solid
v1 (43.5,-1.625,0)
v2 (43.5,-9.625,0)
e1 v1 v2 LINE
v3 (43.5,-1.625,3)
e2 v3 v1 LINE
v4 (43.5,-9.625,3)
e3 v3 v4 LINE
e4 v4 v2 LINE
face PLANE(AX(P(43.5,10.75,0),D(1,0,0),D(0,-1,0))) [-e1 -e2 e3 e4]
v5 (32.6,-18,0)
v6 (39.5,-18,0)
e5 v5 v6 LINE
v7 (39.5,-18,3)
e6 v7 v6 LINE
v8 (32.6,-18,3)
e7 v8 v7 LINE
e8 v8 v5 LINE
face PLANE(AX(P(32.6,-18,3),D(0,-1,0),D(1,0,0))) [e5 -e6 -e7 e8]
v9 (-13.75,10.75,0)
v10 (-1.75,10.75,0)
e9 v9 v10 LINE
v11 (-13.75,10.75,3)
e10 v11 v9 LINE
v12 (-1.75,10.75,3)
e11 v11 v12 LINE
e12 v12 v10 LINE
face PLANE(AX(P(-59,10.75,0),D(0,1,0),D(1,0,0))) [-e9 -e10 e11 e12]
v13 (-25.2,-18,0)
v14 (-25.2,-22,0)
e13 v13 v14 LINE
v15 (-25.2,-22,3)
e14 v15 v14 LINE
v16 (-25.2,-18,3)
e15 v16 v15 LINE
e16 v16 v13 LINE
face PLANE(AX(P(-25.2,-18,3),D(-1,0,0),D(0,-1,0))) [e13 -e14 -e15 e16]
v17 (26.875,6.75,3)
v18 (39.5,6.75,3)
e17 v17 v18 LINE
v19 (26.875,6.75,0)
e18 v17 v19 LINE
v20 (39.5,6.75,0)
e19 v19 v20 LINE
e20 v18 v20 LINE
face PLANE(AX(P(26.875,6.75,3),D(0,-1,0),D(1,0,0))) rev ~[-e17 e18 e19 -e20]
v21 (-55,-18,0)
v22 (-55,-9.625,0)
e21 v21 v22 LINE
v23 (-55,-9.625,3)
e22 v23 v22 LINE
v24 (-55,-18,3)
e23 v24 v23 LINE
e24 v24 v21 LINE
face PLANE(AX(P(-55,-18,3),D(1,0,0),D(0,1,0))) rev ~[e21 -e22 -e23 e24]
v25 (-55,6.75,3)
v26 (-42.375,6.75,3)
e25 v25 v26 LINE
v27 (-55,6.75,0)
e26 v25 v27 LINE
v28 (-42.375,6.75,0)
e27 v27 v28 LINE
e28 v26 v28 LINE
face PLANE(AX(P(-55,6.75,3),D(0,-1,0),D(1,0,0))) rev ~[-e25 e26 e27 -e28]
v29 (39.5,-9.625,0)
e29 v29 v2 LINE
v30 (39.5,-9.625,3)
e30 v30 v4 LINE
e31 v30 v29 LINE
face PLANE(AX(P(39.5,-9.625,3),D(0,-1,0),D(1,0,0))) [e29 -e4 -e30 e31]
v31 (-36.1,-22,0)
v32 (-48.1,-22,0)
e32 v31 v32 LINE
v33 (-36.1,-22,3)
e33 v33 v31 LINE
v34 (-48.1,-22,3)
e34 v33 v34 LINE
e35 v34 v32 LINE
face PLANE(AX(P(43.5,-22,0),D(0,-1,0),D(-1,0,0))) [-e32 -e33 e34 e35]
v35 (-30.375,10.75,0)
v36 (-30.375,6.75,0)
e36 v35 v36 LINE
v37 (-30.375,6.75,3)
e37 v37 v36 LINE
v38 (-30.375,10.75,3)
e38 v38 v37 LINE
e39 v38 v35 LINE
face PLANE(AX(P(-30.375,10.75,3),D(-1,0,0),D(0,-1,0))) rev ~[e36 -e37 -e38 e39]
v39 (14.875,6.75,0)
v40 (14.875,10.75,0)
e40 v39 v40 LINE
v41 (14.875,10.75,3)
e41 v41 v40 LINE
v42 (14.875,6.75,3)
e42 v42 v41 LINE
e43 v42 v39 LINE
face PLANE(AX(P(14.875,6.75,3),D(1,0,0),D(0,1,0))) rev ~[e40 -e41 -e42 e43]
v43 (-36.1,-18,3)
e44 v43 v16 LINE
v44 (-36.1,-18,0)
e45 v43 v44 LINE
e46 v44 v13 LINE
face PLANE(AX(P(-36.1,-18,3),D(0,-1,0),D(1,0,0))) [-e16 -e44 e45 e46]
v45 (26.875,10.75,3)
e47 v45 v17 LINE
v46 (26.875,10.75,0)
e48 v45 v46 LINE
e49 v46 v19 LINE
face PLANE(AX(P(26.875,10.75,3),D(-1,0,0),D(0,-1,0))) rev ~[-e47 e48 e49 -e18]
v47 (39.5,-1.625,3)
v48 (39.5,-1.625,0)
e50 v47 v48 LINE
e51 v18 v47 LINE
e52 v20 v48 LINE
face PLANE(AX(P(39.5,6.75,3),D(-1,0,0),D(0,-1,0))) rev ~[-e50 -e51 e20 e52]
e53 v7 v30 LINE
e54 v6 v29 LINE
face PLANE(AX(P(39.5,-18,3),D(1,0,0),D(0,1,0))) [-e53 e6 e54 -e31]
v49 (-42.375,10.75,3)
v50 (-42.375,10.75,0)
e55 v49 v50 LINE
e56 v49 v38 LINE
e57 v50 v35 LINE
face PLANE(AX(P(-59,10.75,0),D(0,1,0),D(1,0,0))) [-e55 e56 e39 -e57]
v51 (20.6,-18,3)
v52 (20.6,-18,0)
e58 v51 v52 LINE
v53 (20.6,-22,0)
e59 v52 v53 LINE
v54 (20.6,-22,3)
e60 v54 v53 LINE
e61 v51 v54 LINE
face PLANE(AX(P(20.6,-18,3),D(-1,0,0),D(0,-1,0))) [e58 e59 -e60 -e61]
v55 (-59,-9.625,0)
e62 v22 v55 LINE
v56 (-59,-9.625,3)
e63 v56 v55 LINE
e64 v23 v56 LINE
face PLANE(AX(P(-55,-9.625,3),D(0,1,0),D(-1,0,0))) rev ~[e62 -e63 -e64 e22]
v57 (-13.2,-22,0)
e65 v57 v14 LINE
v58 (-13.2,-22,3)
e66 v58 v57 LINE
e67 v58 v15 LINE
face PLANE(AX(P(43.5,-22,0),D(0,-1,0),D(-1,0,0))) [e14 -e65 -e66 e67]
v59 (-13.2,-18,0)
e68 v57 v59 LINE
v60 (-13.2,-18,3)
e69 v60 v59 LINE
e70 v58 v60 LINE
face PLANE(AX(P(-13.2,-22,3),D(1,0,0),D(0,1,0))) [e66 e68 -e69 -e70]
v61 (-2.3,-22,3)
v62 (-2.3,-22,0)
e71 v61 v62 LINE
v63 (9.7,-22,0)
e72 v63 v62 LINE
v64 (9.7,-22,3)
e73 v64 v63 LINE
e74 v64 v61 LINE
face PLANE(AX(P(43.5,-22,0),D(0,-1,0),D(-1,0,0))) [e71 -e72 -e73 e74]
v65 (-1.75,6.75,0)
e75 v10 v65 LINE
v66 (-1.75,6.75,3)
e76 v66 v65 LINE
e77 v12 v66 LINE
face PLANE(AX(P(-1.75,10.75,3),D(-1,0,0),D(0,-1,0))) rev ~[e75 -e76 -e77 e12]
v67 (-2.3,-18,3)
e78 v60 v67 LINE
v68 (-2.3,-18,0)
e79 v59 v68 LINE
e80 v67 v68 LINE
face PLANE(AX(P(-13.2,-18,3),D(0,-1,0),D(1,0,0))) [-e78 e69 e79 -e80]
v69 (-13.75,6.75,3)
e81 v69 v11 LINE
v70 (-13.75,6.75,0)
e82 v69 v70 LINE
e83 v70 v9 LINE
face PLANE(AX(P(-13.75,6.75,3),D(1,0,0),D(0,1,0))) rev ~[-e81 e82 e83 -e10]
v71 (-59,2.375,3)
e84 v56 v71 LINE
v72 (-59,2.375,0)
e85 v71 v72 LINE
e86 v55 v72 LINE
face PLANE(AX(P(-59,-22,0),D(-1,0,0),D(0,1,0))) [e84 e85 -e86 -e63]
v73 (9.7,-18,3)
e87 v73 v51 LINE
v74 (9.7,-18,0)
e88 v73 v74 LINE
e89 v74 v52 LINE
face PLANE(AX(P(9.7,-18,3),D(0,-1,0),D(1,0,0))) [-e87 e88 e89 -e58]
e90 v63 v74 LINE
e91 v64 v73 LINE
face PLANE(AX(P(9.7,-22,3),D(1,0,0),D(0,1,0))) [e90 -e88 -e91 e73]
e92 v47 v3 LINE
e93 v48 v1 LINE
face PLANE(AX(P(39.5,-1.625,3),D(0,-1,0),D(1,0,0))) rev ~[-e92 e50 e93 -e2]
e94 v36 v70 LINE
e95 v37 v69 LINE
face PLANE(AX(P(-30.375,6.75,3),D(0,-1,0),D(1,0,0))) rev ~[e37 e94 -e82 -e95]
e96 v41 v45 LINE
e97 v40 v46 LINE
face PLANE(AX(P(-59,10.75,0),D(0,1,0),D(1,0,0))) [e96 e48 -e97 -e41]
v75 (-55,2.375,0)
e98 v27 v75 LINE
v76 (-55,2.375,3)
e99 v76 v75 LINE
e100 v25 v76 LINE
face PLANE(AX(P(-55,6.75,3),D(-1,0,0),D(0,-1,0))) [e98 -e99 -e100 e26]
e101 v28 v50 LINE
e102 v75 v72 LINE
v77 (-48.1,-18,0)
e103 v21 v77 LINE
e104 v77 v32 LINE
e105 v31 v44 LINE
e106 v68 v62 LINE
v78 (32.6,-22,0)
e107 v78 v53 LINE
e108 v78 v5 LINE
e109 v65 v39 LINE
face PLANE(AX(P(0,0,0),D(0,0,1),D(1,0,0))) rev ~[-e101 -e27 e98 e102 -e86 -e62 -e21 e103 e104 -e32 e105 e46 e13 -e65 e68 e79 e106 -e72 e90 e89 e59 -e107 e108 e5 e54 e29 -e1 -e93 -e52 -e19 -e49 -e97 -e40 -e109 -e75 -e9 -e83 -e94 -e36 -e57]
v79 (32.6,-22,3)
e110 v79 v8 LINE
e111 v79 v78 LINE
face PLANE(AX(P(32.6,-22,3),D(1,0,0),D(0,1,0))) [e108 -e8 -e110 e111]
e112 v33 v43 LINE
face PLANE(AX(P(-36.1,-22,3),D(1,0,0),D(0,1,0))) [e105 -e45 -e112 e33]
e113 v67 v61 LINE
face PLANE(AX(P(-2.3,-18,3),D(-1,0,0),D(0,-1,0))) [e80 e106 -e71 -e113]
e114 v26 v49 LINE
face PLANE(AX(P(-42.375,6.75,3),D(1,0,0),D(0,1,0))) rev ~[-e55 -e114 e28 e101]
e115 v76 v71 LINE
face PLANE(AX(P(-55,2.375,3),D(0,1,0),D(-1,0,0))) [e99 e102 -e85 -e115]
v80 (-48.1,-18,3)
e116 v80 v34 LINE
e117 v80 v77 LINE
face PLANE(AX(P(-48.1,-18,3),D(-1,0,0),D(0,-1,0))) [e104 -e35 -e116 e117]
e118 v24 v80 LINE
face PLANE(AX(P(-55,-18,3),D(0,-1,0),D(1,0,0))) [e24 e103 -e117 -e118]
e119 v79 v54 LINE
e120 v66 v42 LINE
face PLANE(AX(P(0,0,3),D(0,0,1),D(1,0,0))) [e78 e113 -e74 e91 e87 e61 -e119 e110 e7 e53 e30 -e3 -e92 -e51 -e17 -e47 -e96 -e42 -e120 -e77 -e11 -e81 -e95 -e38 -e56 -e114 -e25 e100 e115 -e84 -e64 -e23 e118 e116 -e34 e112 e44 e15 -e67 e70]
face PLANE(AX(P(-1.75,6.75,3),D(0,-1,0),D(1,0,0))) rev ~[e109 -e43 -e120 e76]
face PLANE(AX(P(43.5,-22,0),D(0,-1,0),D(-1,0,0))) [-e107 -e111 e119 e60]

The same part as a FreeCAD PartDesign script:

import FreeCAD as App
import Part
import Sketcher

V = App.Vector
Q = App.Units.Quantity

doc = App.newDocument("Part")
body = doc.addObject("PartDesign::Body", "Body")

sketch1 = body.newObject("Sketcher::SketchObject", "Sketch")
sketch1.AttachmentSupport = (doc.getObject("XY_Plane"), [""])
sketch1.MapMode = "FlatFace"
sketch1.addGeometry(Part.LineSegment(V(44, 11, 0), V(-59, 11, 0)), False)
sketch1.addGeometry(Part.LineSegment(V(-59, 11, 0), V(-59, -22, 0)), False)
sketch1.addGeometry(Part.LineSegment(V(-59, -22, 0), V(44, -22, 0)), False)
sketch1.addGeometry(Part.LineSegment(V(44, -22, 0), V(44, 11, 0)), False)
sketch1.addConstraint(Sketcher.Constraint("Coincident", 0, 2, 1, 1))
sketch1.addConstraint(Sketcher.Constraint("Coincident", 1, 2, 2, 1))
sketch1.addConstraint(Sketcher.Constraint("Coincident", 2, 2, 3, 1))
sketch1.addConstraint(Sketcher.Constraint("Coincident", 3, 2, 0, 1))
sketch1.addConstraint(Sketcher.Constraint("Horizontal", 0))
sketch1.addConstraint(Sketcher.Constraint("Vertical", 1))
sketch1.addConstraint(Sketcher.Constraint("Horizontal", 2))
sketch1.addConstraint(Sketcher.Constraint("Vertical", 3))
sketch1.addConstraint(Sketcher.Constraint("DistanceX", 0, 2, -1, 1, Q("59 mm")))
sketch1.addConstraint(Sketcher.Constraint("DistanceY", 1, 2, -1, 1, Q("22 mm")))
sketch1.addConstraint(Sketcher.Constraint("DistanceX", -1, 1, 2, 2, Q("43.5 mm")))
sketch1.addConstraint(Sketcher.Constraint("DistanceY", -1, 1, 0, 2, Q("10.75 mm")))
pad1 = body.newObject("PartDesign::Pad", "Pad")
pad1.Profile = sketch1
pad1.Length = 3

sketch2 = body.newObject("Sketcher::SketchObject", "Sketch001")
sketch2.AttachmentSupport = (doc.getObject("XY_Plane"), [""])
sketch2.MapMode = "FlatFace"
sketch2.AttachmentOffset = App.Placement(V(0, 0, 3), App.Rotation())
sketch2.addGeometry(Part.LineSegment(V(-59, -22, 0), V(-48.1, -22, 0)), False)
sketch2.addGeometry(Part.LineSegment(V(-48.1, -22, 0), V(-48.1, -18, 0)), False)
sketch2.addGeometry(Part.LineSegment(V(-48.1, -18, 0), V(-55, -18, 0)), False)
sketch2.addGeometry(Part.LineSegment(V(-55, -18, 0), V(-55, -9.6, 0)), False)
sketch2.addGeometry(Part.LineSegment(V(-55, -9.6, 0), V(-59, -9.6, 0)), False)
sketch2.addGeometry(Part.LineSegment(V(-59, -9.6, 0), V(-59, -22, 0)), False)
sketch2.addGeometry(Part.LineSegment(V(-59, 2.4, 0), V(-55, 2.4, 0)), False)
sketch2.addGeometry(Part.LineSegment(V(-55, 2.4, 0), V(-55, 6.8, 0)), False)
sketch2.addGeometry(Part.LineSegment(V(-55, 6.8, 0), V(-42.4, 6.8, 0)), False)
sketch2.addGeometry(Part.LineSegment(V(-42.4, 6.8, 0), V(-42.4, 10.8, 0)), False)
sketch2.addGeometry(Part.LineSegment(V(-42.4, 10.8, 0), V(-59, 10.8, 0)), False)
sketch2.addGeometry(Part.LineSegment(V(-59, 10.8, 0), V(-59, 2.4, 0)), False)
sketch2.addGeometry(Part.LineSegment(V(39.5, -1.6, 0), V(43.5, -1.6, 0)), False)
sketch2.addGeometry(Part.LineSegment(V(43.5, -1.6, 0), V(43.5, 10.8, 0)), False)
sketch2.addGeometry(Part.LineSegment(V(43.5, 10.8, 0), V(26.9, 10.8, 0)), False)
sketch2.addGeometry(Part.LineSegment(V(26.9, 10.8, 0), V(26.9, 6.8, 0)), False)
sketch2.addGeometry(Part.LineSegment(V(26.9, 6.8, 0), V(39.5, 6.8, 0)), False)
sketch2.addGeometry(Part.LineSegment(V(39.5, 6.8, 0), V(39.5, -1.6, 0)), False)
sketch2.addGeometry(Part.LineSegment(V(32.6, -18, 0), V(32.6, -22, 0)), False)
sketch2.addGeometry(Part.LineSegment(V(32.6, -22, 0), V(43.5, -22, 0)), False)
sketch2.addGeometry(Part.LineSegment(V(43.5, -22, 0), V(43.5, -9.6, 0)), False)
sketch2.addGeometry(Part.LineSegment(V(43.5, -9.6, 0), V(39.5, -9.6, 0)), False)
sketch2.addGeometry(Part.LineSegment(V(39.5, -9.6, 0), V(39.5, -18, 0)), False)
sketch2.addGeometry(Part.LineSegment(V(39.5, -18, 0), V(32.6, -18, 0)), False)
sketch2.addGeometry(Part.LineSegment(V(9.7, -18, 0), V(9.7, -22, 0)), False)
sketch2.addGeometry(Part.LineSegment(V(9.7, -22, 0), V(20.6, -22, 0)), False)
sketch2.addGeometry(Part.LineSegment(V(20.6, -22, 0), V(20.6, -18, 0)), False)
sketch2.addGeometry(Part.LineSegment(V(20.6, -18, 0), V(9.7, -18, 0)), False)
sketch2.addGeometry(Part.LineSegment(V(-13.2, -18, 0), V(-13.2, -22, 0)), False)
sketch2.addGeometry(Part.LineSegment(V(-13.2, -22, 0), V(-2.3, -22, 0)), False)
sketch2.addGeometry(Part.LineSegment(V(-2.3, -22, 0), V(-2.3, -18, 0)), False)
sketch2.addGeometry(Part.LineSegment(V(-2.3, -18, 0), V(-13.2, -18, 0)), False)
sketch2.addGeometry(Part.LineSegment(V(-36.1, -18, 0), V(-36.1, -22, 0)), False)
sketch2.addGeometry(Part.LineSegment(V(-36.1, -22, 0), V(-25.2, -22, 0)), False)
sketch2.addGeometry(Part.LineSegment(V(-25.2, -22, 0), V(-25.2, -18, 0)), False)
sketch2.addGeometry(Part.LineSegment(V(-25.2, -18, 0), V(-36.1, -18, 0)), False)
sketch2.addGeometry(Part.LineSegment(V(14.9, 6.8, 0), V(14.9, 10.8, 0)), False)
sketch2.addGeometry(Part.LineSegment(V(14.9, 10.8, 0), V(-1.8, 10.8, 0)), False)
sketch2.addGeometry(Part.LineSegment(V(-1.8, 10.8, 0), V(-1.8, 6.8, 0)), False)
sketch2.addGeometry(Part.LineSegment(V(-1.8, 6.8, 0), V(14.9, 6.8, 0)), False)
sketch2.addGeometry(Part.LineSegment(V(-13.8, 6.8, 0), V(-13.8, 10.8, 0)), False)
sketch2.addGeometry(Part.LineSegment(V(-13.8, 10.8, 0), V(-30.4, 10.8, 0)), False)
sketch2.addGeometry(Part.LineSegment(V(-30.4, 10.8, 0), V(-30.4, 6.8, 0)), False)
sketch2.addGeometry(Part.LineSegment(V(-30.4, 6.8, 0), V(-13.8, 6.8, 0)), False)
sketch2.addConstraint(Sketcher.Constraint("Coincident", 0, 2, 1, 1))
sketch2.addConstraint(Sketcher.Constraint("Coincident", 1, 2, 2, 1))
sketch2.addConstraint(Sketcher.Constraint("Coincident", 2, 2, 3, 1))
sketch2.addConstraint(Sketcher.Constraint("Coincident", 3, 2, 4, 1))
sketch2.addConstraint(Sketcher.Constraint("Coincident", 4, 2, 5, 1))
sketch2.addConstraint(Sketcher.Constraint("Coincident", 5, 2, 0, 1))
sketch2.addConstraint(Sketcher.Constraint("Coincident", 6, 2, 7, 1))
sketch2.addConstraint(Sketcher.Constraint("Coincident", 7, 2, 8, 1))
sketch2.addConstraint(Sketcher.Constraint("Coincident", 8, 2, 9, 1))
sketch2.addConstraint(Sketcher.Constraint("Coincident", 9, 2, 10, 1))
sketch2.addConstraint(Sketcher.Constraint("Coincident", 10, 2, 11, 1))
sketch2.addConstraint(Sketcher.Constraint("Coincident", 11, 2, 6, 1))
sketch2.addConstraint(Sketcher.Constraint("Coincident", 12, 2, 13, 1))
sketch2.addConstraint(Sketcher.Constraint("Coincident", 13, 2, 14, 1))
sketch2.addConstraint(Sketcher.Constraint("Coincident", 14, 2, 15, 1))
sketch2.addConstraint(Sketcher.Constraint("Coincident", 15, 2, 16, 1))
sketch2.addConstraint(Sketcher.Constraint("Coincident", 16, 2, 17, 1))
sketch2.addConstraint(Sketcher.Constraint("Coincident", 17, 2, 12, 1))
sketch2.addConstraint(Sketcher.Constraint("Coincident", 18, 2, 19, 1))
sketch2.addConstraint(Sketcher.Constraint("Coincident", 19, 2, 20, 1))
sketch2.addConstraint(Sketcher.Constraint("Coincident", 20, 2, 21, 1))
sketch2.addConstraint(Sketcher.Constraint("Coincident", 21, 2, 22, 1))
sketch2.addConstraint(Sketcher.Constraint("Coincident", 22, 2, 23, 1))
sketch2.addConstraint(Sketcher.Constraint("Coincident", 23, 2, 18, 1))
sketch2.addConstraint(Sketcher.Constraint("Coincident", 24, 2, 25, 1))
sketch2.addConstraint(Sketcher.Constraint("Coincident", 25, 2, 26, 1))
sketch2.addConstraint(Sketcher.Constraint("Coincident", 26, 2, 27, 1))
sketch2.addConstraint(Sketcher.Constraint("Coincident", 27, 2, 24, 1))
sketch2.addConstraint(Sketcher.Constraint("Coincident", 28, 2, 29, 1))
sketch2.addConstraint(Sketcher.Constraint("Coincident", 29, 2, 30, 1))
sketch2.addConstraint(Sketcher.Constraint("Coincident", 30, 2, 31, 1))
sketch2.addConstraint(Sketcher.Constraint("Coincident", 31, 2, 28, 1))
sketch2.addConstraint(Sketcher.Constraint("Coincident", 32, 2, 33, 1))
sketch2.addConstraint(Sketcher.Constraint("Coincident", 33, 2, 34, 1))
sketch2.addConstraint(Sketcher.Constraint("Coincident", 34, 2, 35, 1))
sketch2.addConstraint(Sketcher.Constraint("Coincident", 35, 2, 32, 1))
sketch2.addConstraint(Sketcher.Constraint("Coincident", 36, 2, 37, 1))
sketch2.addConstraint(Sketcher.Constraint("Coincident", 37, 2, 38, 1))
sketch2.addConstraint(Sketcher.Constraint("Coincident", 38, 2, 39, 1))
sketch2.addConstraint(Sketcher.Constraint("Coincident", 39, 2, 36, 1))
sketch2.addConstraint(Sketcher.Constraint("Coincident", 40, 2, 41, 1))
sketch2.addConstraint(Sketcher.Constraint("Coincident", 41, 2, 42, 1))
sketch2.addConstraint(Sketcher.Constraint("Coincident", 42, 2, 43, 1))
sketch2.addConstraint(Sketcher.Constraint("Coincident", 43, 2, 40, 1))
sketch2.addConstraint(Sketcher.Constraint("Horizontal", 0))
sketch2.addConstraint(Sketcher.Constraint("Vertical", 1))
sketch2.addConstraint(Sketcher.Constraint("Horizontal", 2))
sketch2.addConstraint(Sketcher.Constraint("Vertical", 3))
sketch2.addConstraint(Sketcher.Constraint("Horizontal", 4))
sketch2.addConstraint(Sketcher.Constraint("Vertical", 5))
sketch2.addConstraint(Sketcher.Constraint("Horizontal", 6))
sketch2.addConstraint(Sketcher.Constraint("Vertical", 7))
sketch2.addConstraint(Sketcher.Constraint("Horizontal", 8))
sketch2.addConstraint(Sketcher.Constraint("Vertical", 9))
sketch2.addConstraint(Sketcher.Constraint("Horizontal", 10))
sketch2.addConstraint(Sketcher.Constraint("Vertical", 11))
sketch2.addConstraint(Sketcher.Constraint("Horizontal", 12))
sketch2.addConstraint(Sketcher.Constraint("Vertical", 13))
sketch2.addConstraint(Sketcher.Constraint("Horizontal", 14))
sketch2.addConstraint(Sketcher.Constraint("Vertical", 15))
sketch2.addConstraint(Sketcher.Constraint("Horizontal", 16))
sketch2.addConstraint(Sketcher.Constraint("Vertical", 17))
sketch2.addConstraint(Sketcher.Constraint("Vertical", 18))
sketch2.addConstraint(Sketcher.Constraint("Horizontal", 19))
sketch2.addConstraint(Sketcher.Constraint("Vertical", 20))
sketch2.addConstraint(Sketcher.Constraint("Horizontal", 21))
sketch2.addConstraint(Sketcher.Constraint("Vertical", 22))
sketch2.addConstraint(Sketcher.Constraint("Horizontal", 23))
sketch2.addConstraint(Sketcher.Constraint("Vertical", 24))
sketch2.addConstraint(Sketcher.Constraint("Horizontal", 25))
sketch2.addConstraint(Sketcher.Constraint("Vertical", 26))
sketch2.addConstraint(Sketcher.Constraint("Horizontal", 27))
sketch2.addConstraint(Sketcher.Constraint("Vertical", 28))
sketch2.addConstraint(Sketcher.Constraint("Horizontal", 29))
sketch2.addConstraint(Sketcher.Constraint("Vertical", 30))
sketch2.addConstraint(Sketcher.Constraint("Horizontal", 31))
sketch2.addConstraint(Sketcher.Constraint("Vertical", 32))
sketch2.addConstraint(Sketcher.Constraint("Horizontal", 33))
sketch2.addConstraint(Sketcher.Constraint("Vertical", 34))
sketch2.addConstraint(Sketcher.Constraint("Horizontal", 35))
sketch2.addConstraint(Sketcher.Constraint("Vertical", 36))
sketch2.addConstraint(Sketcher.Constraint("Horizontal", 37))
sketch2.addConstraint(Sketcher.Constraint("Vertical", 38))
sketch2.addConstraint(Sketcher.Constraint("Horizontal", 39))
sketch2.addConstraint(Sketcher.Constraint("Vertical", 40))
sketch2.addConstraint(Sketcher.Constraint("Horizontal", 41))
sketch2.addConstraint(Sketcher.Constraint("Vertical", 42))
sketch2.addConstraint(Sketcher.Constraint("Horizontal", 43))
sketch2.addConstraint(Sketcher.Constraint("Horizontal", 10, 2, 13, 2))
sketch2.addConstraint(Sketcher.Constraint("Horizontal", 8, 2, 15, 2))
sketch2.addConstraint(Sketcher.Constraint("Horizontal", 5, 2, 18, 2))
sketch2.addConstraint(Sketcher.Constraint("Horizontal", 4, 2, 20, 2))
sketch2.addConstraint(Sketcher.Constraint("Horizontal", 2, 2, 22, 2))
sketch2.addConstraint(Sketcher.Constraint("Horizontal", 19, 2, 24, 2))
sketch2.addConstraint(Sketcher.Constraint("Horizontal", 23, 2, 26, 2))
sketch2.addConstraint(Sketcher.Constraint("Horizontal", 25, 2, 28, 2))
sketch2.addConstraint(Sketcher.Constraint("Horizontal", 27, 2, 30, 2))
sketch2.addConstraint(Sketcher.Constraint("Horizontal", 29, 2, 32, 2))
sketch2.addConstraint(Sketcher.Constraint("Horizontal", 31, 2, 34, 2))
sketch2.addConstraint(Sketcher.Constraint("Horizontal", 14, 2, 36, 2))
sketch2.addConstraint(Sketcher.Constraint("Horizontal", 16, 2, 38, 2))
sketch2.addConstraint(Sketcher.Constraint("Horizontal", 37, 2, 40, 2))
sketch2.addConstraint(Sketcher.Constraint("Horizontal", 39, 2, 42, 2))
sketch2.addConstraint(Sketcher.Constraint("Vertical", 3, 2, 6, 2))
sketch2.addConstraint(Sketcher.Constraint("Vertical", 5, 2, 10, 2))
sketch2.addConstraint(Sketcher.Constraint("Vertical", 13, 2, 19, 2))
sketch2.addConstraint(Sketcher.Constraint("Vertical", 17, 2, 21, 2))
sketch2.addConstraint(Sketcher.Constraint("Equal", 6, 12))
sketch2.addConstraint(Sketcher.Constraint("Equal", 10, 14))
sketch2.addConstraint(Sketcher.Constraint("Equal", 0, 19))
sketch2.addConstraint(Sketcher.Constraint("Equal", 19, 25))
sketch2.addConstraint(Sketcher.Constraint("Equal", 27, 29))
sketch2.addConstraint(Sketcher.Constraint("Equal", 31, 33))
sketch2.addConstraint(Sketcher.Constraint("Equal", 14, 37))
sketch2.addConstraint(Sketcher.Constraint("Equal", 39, 41))
sketch2.addConstraint(Sketcher.Constraint("Equal", 21, 1))
sketch2.addConstraint(Sketcher.Constraint("Equal", 1, 9))
sketch2.addConstraint(Sketcher.Constraint("Equal", 3, 11))
sketch2.addConstraint(Sketcher.Constraint("Equal", 5, 13))
sketch2.addConstraint(Sketcher.Constraint("DistanceX", 4, 2, 4, 1, Q("4 mm")))
sketch2.addConstraint(Sketcher.Constraint("DistanceX", 0, 1, 0, 2, Q("10.9 mm")))
sketch2.addConstraint(Sketcher.Constraint("DistanceX", 24, 2, 18, 2, Q("22.9 mm")))
sketch2.addConstraint(Sketcher.Constraint("DistanceX", 28, 2, 24, 2, Q("22.9 mm")))
sketch2.addConstraint(Sketcher.Constraint("DistanceX", 5, 2, 32, 2, Q("22.9 mm")))
sketch2.addConstraint(Sketcher.Constraint("DistanceX", 33, 2, 29, 2, Q("22.9 mm")))
sketch2.addConstraint(Sketcher.Constraint("DistanceX", 10, 2, 10, 1, Q("16.625 mm")))
sketch2.addConstraint(Sketcher.Constraint("DistanceY", 3, 1, 3, 2, Q("8.375 mm")))
sketch2.addConstraint(Sketcher.Constraint("DistanceY", 0, 2, -1, 1, Q("22 mm")))
sketch2.addConstraint(Sketcher.Constraint("DistanceX", 2, 2, -1, 1, Q("55 mm")))
sketch2.addConstraint(Sketcher.Constraint("DistanceY", 3, 2, 6, 2, Q("12 mm")))
sketch2.addConstraint(Sketcher.Constraint("DistanceX", 36, 2, 14, 2, Q("12 mm")))
sketch2.addConstraint(Sketcher.Constraint("DistanceX", 40, 2, 37, 2, Q("12 mm")))
pocket1 = body.newObject("PartDesign::Pocket", "Pocket")
pocket1.Profile = sketch2
pocket1.Type = "ThroughAll"

doc.recompute()
